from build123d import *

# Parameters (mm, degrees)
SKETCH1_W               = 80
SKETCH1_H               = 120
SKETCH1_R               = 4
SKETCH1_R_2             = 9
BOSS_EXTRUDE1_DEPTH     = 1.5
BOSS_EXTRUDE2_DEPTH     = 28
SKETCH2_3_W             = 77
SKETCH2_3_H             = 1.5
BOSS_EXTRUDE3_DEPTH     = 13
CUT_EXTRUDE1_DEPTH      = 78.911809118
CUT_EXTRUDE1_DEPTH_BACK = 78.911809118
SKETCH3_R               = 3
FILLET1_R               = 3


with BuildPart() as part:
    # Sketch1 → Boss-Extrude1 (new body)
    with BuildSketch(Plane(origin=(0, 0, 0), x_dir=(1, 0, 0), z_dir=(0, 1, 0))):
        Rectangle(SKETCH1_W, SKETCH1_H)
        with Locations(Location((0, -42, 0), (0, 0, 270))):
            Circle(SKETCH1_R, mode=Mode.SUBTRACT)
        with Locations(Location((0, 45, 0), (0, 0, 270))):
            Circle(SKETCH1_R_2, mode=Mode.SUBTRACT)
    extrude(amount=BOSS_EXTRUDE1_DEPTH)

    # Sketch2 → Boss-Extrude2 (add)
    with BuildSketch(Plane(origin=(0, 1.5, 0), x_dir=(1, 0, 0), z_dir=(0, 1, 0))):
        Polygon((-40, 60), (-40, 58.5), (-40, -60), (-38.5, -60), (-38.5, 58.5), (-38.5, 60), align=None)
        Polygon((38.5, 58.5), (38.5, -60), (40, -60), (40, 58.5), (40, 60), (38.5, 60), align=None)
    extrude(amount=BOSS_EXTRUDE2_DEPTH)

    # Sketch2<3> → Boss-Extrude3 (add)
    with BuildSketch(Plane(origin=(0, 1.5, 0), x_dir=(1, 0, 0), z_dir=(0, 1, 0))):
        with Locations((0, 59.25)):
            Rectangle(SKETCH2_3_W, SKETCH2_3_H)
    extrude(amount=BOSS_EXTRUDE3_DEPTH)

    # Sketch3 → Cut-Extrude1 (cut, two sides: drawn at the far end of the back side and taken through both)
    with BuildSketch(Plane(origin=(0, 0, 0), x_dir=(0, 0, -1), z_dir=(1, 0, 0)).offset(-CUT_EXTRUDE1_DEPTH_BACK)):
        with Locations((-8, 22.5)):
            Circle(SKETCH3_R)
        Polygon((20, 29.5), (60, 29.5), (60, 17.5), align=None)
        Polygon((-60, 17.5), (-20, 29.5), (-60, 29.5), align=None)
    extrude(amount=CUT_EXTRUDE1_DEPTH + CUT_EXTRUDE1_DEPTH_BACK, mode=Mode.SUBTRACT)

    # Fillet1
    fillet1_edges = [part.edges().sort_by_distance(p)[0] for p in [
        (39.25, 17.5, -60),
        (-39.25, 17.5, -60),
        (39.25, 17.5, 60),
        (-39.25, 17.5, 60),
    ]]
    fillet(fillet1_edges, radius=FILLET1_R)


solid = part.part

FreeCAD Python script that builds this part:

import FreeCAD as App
import Part
import Sketcher
Q = App.Units.Quantity


def edges_at(feature, points):
    """Names of the edges that pass closest to the given points."""
    edges = feature.Shape.Edges
    near = lambda p: min(range(len(edges)), key=lambda i: edges[i].distToShape(Part.Vertex(*p))[0])
    return sorted({f"Edge{near(p) + 1}" for p in points})

doc = App.newDocument("Part")
body = doc.addObject("PartDesign::Body", "Body")

# Sketch on XZ plane
sketch1 = body.newObject("Sketcher::SketchObject", "Sketch")
sketch1.AttachmentSupport = (doc.getObject("XZ_Plane"), [""])
sketch1.MapMode = "FlatFace"
sketch1.addGeometry([
    Part.LineSegment(App.Vector(-40, -60, 0), App.Vector(-40, 60, 0)),  # 0
    Part.LineSegment(App.Vector(-40, 60, 0), App.Vector(40, 60, 0)),  # 1
    Part.LineSegment(App.Vector(40, 60, 0), App.Vector(40, -60, 0)),  # 2
    Part.LineSegment(App.Vector(40, -60, 0), App.Vector(-40, -60, 0)),  # 3
    Part.Circle(App.Vector(0, 42, 0), App.Vector(0, 0, 1), 4),  # 4
    Part.Circle(App.Vector(0, -45, 0), App.Vector(0, 0, 1), 9),  # 5
], False)
sketch1.addConstraint([
    Sketcher.Constraint("Coincident", 0, 2, 1, 1),
    Sketcher.Constraint("Coincident", 1, 2, 2, 1),
    Sketcher.Constraint("Coincident", 2, 2, 3, 1),
    Sketcher.Constraint("Coincident", 3, 2, 0, 1),
    Sketcher.Constraint("Vertical", 0),
    Sketcher.Constraint("Horizontal", 1),
    Sketcher.Constraint("Vertical", 2),
    Sketcher.Constraint("Horizontal", 3),
    Sketcher.Constraint("Symmetric", 0, 2, 2, 2, -1, 1),
    Sketcher.Constraint("PointOnObject", 4, 3, -2),
    Sketcher.Constraint("PointOnObject", 5, 3, -2),
    Sketcher.Constraint("Diameter", 4, Q("8 mm")),
    Sketcher.Constraint("Diameter", 5, Q("18 mm")),
    Sketcher.Constraint("DistanceX", 1, 1, 1, 2, Q("80 mm")),
    Sketcher.Constraint("DistanceY", 0, 1, 0, 2, Q("120 mm")),
    Sketcher.Constraint("DistanceY", -1, 1, 4, 3, Q("42 mm")),
    Sketcher.Constraint("DistanceY", 5, 3, -1, 1, Q("45 mm")),
])
pad1 = body.newObject("PartDesign::Pad", "Pad")
pad1.Profile = sketch1
pad1.Length = 1.5
pad1.Reversed = True

# Sketch on XZ plane
sketch2 = body.newObject("Sketcher::SketchObject", "Sketch001")
sketch2.AttachmentSupport = (doc.getObject("XZ_Plane"), [""])
sketch2.MapMode = "FlatFace"
sketch2.AttachmentOffset = App.Placement(App.Vector(0, 0, -1.5), App.Rotation())
sketch2.addGeometry([
    Part.LineSegment(App.Vector(-40, -60, 0), App.Vector(-40, 60, 0)),  # 0
    Part.LineSegment(App.Vector(-40, 60, 0), App.Vector(-38.5, 60, 0)),  # 1
    Part.LineSegment(App.Vector(-38.5, 60, 0), App.Vector(-38.5, -60, 0)),  # 2
    Part.LineSegment(App.Vector(-38.5, -60, 0), App.Vector(-40, -60, 0)),  # 3
    Part.LineSegment(App.Vector(38.5, 60, 0), App.Vector(40, 60, 0)),  # 4
    Part.LineSegment(App.Vector(40, 60, 0), App.Vector(40, -60, 0)),  # 5
    Part.LineSegment(App.Vector(40, -60, 0), App.Vector(38.5, -60, 0)),  # 6
    Part.LineSegment(App.Vector(38.5, -60, 0), App.Vector(38.5, 60, 0)),  # 7
], False)
sketch2.addConstraint([
    Sketcher.Constraint("Coincident", 0, 2, 1, 1),
    Sketcher.Constraint("Coincident", 1, 2, 2, 1),
    Sketcher.Constraint("Coincident", 2, 2, 3, 1),
    Sketcher.Constraint("Coincident", 3, 2, 0, 1),
    Sketcher.Constraint("Coincident", 4, 2, 5, 1),
    Sketcher.Constraint("Coincident", 5, 2, 6, 1),
    Sketcher.Constraint("Coincident", 6, 2, 7, 1),
    Sketcher.Constraint("Coincident", 7, 2, 4, 1),
    Sketcher.Constraint("Vertical", 0),
    Sketcher.Constraint("Horizontal", 1),
    Sketcher.Constraint("Vertical", 2),
    Sketcher.Constraint("Horizontal", 3),
    Sketcher.Constraint("Horizontal", 4),
    Sketcher.Constraint("Vertical", 5),
    Sketcher.Constraint("Horizontal", 6),
    Sketcher.Constraint("Vertical", 7),
    Sketcher.Constraint("Symmetric", 3, 2, 4, 2, -1, 1),
    Sketcher.Constraint("Symmetric", 1, 2, 6, 2, -1, 1),
    Sketcher.Constraint("Horizontal", 1, 2, 4, 2),
    Sketcher.Constraint("DistanceY", 0, 1, 0, 2, Q("120 mm")),
    Sketcher.Constraint("DistanceX", 1, 1, 1, 2, Q("1.5 mm")),
    Sketcher.Constraint("DistanceX", 0, 2, -1, 1, Q("40 mm")),
])
pad2 = body.newObject("PartDesign::Pad", "Pad001")
pad2.Profile = sketch2
pad2.Length = 28
pad2.Reversed = True

# Sketch on XZ plane
sketch3 = body.newObject("Sketcher::SketchObject", "Sketch002")
sketch3.AttachmentSupport = (doc.getObject("XZ_Plane"), [""])
sketch3.MapMode = "FlatFace"
sketch3.AttachmentOffset = App.Placement(App.Vector(0, 0, -1.5), App.Rotation())
sketch3.addGeometry([
    Part.LineSegment(App.Vector(-38.5, -60, 0), App.Vector(-38.5, -58.5, 0)),
    Part.LineSegment(App.Vector(-38.5, -58.5, 0), App.Vector(38.5, -58.5, 0)),
    Part.LineSegment(App.Vector(38.5, -58.5, 0), App.Vector(38.5, -60, 0)),
    Part.LineSegment(App.Vector(38.5, -60, 0), App.Vector(-38.5, -60, 0)),
], False)
sketch3.addConstraint([
    Sketcher.Constraint("Coincident", 0, 2, 1, 1),
    Sketcher.Constraint("Coincident", 1, 2, 2, 1),
    Sketcher.Constraint("Coincident", 2, 2, 3, 1),
    Sketcher.Constraint("Coincident", 3, 2, 0, 1),
    Sketcher.Constraint("Vertical", 0),
    Sketcher.Constraint("Horizontal", 1),
    Sketcher.Constraint("Vertical", 2),
    Sketcher.Constraint("Horizontal", 3),
    Sketcher.Constraint("DistanceX", 1, 1, 1, 2, Q("77 mm")),
    Sketcher.Constraint("DistanceY", 0, 1, 0, 2, Q("1.5 mm")),
    Sketcher.Constraint("DistanceY", 2, 2, -1, 1, Q("60 mm")),
    Sketcher.Constraint("DistanceX", 0, 2, -1, 1, Q("38.5 mm")),
])
pad3 = body.newObject("PartDesign::Pad", "Pad002")
pad3.Profile = sketch3
pad3.Length = 13
pad3.Reversed = True

# Sketch on YZ plane
sketch4 = body.newObject("Sketcher::SketchObject", "Sketch003")
sketch4.AttachmentSupport = (doc.getObject("YZ_Plane"), [""])
sketch4.MapMode = "FlatFace"
sketch4.addGeometry([
    Part.Circle(App.Vector(22.5, 8, 0), App.Vector(0, 0, 1), 3),  # 0
    Part.LineSegment(App.Vector(29.5, -60, 0), App.Vector(29.5, -20, 0)),  # 1
    Part.LineSegment(App.Vector(29.5, -20, 0), App.Vector(17.5, -60, 0)),  # 2
    Part.LineSegment(App.Vector(17.5, -60, 0), App.Vector(29.5, -60, 0)),  # 3
    Part.LineSegment(App.Vector(17.5, 60, 0), App.Vector(29.5, 20, 0)),  # 4
    Part.LineSegment(App.Vector(29.5, 20, 0), App.Vector(29.5, 60, 0)),  # 5
    Part.LineSegment(App.Vector(29.5, 60, 0), App.Vector(17.5, 60, 0)),  # 6
], False)
sketch4.addConstraint([
    Sketcher.Constraint("Coincident", 1, 2, 2, 1),
    Sketcher.Constraint("Coincident", 2, 2, 3, 1),
    Sketcher.Constraint("Coincident", 3, 2, 1, 1),
    Sketcher.Constraint("Coincident", 4, 2, 5, 1),
    Sketcher.Constraint("Coincident", 5, 2, 6, 1),
    Sketcher.Constraint("Coincident", 6, 2, 4, 1),
    Sketcher.Constraint("Vertical", 1),
    Sketcher.Constraint("Horizontal", 3),
    Sketcher.Constraint("Vertical", 5),
    Sketcher.Constraint("Horizontal", 6),
    Sketcher.Constraint("Symmetric", 1, 2, 4, 2, -1),
    Sketcher.Constraint("Symmetric", 2, 2, 6, 2, -1),
    Sketcher.Constraint("Diameter", 0, Q("6 mm")),
    Sketcher.Constraint("DistanceX", 3, 1, 3, 2, Q("12 mm")),
    Sketcher.Constraint("DistanceY", 1, 1, 1, 2, Q("40 mm")),
    Sketcher.Constraint("DistanceY", -1, 1, 0, 3, Q("8 mm")),
    Sketcher.Constraint("DistanceY", 1, 2, -1, 1, Q("20 mm")),
    Sketcher.Constraint("DistanceX", 0, 3, 1, 2, Q("7 mm")),
    Sketcher.Constraint("DistanceX", -1, 1, 0, 3, Q("22.5 mm")),
])
pocket1 = body.newObject("PartDesign::Pocket", "Pocket")
pocket1.Profile = sketch4
pocket1.Type = "ThroughAll"
pocket1.Midplane = True
doc.recompute()

fillet = body.newObject("PartDesign::Fillet", "Fillet")
fillet.Base = (pocket1, edges_at(pocket1, [
    (39.25, 17.5, -60),
    (-39.25, 17.5, -60),
    (39.25, 17.5, 60),
    (-39.25, 17.5, 60),
]))
fillet.Radius = 3

doc.recompute()
